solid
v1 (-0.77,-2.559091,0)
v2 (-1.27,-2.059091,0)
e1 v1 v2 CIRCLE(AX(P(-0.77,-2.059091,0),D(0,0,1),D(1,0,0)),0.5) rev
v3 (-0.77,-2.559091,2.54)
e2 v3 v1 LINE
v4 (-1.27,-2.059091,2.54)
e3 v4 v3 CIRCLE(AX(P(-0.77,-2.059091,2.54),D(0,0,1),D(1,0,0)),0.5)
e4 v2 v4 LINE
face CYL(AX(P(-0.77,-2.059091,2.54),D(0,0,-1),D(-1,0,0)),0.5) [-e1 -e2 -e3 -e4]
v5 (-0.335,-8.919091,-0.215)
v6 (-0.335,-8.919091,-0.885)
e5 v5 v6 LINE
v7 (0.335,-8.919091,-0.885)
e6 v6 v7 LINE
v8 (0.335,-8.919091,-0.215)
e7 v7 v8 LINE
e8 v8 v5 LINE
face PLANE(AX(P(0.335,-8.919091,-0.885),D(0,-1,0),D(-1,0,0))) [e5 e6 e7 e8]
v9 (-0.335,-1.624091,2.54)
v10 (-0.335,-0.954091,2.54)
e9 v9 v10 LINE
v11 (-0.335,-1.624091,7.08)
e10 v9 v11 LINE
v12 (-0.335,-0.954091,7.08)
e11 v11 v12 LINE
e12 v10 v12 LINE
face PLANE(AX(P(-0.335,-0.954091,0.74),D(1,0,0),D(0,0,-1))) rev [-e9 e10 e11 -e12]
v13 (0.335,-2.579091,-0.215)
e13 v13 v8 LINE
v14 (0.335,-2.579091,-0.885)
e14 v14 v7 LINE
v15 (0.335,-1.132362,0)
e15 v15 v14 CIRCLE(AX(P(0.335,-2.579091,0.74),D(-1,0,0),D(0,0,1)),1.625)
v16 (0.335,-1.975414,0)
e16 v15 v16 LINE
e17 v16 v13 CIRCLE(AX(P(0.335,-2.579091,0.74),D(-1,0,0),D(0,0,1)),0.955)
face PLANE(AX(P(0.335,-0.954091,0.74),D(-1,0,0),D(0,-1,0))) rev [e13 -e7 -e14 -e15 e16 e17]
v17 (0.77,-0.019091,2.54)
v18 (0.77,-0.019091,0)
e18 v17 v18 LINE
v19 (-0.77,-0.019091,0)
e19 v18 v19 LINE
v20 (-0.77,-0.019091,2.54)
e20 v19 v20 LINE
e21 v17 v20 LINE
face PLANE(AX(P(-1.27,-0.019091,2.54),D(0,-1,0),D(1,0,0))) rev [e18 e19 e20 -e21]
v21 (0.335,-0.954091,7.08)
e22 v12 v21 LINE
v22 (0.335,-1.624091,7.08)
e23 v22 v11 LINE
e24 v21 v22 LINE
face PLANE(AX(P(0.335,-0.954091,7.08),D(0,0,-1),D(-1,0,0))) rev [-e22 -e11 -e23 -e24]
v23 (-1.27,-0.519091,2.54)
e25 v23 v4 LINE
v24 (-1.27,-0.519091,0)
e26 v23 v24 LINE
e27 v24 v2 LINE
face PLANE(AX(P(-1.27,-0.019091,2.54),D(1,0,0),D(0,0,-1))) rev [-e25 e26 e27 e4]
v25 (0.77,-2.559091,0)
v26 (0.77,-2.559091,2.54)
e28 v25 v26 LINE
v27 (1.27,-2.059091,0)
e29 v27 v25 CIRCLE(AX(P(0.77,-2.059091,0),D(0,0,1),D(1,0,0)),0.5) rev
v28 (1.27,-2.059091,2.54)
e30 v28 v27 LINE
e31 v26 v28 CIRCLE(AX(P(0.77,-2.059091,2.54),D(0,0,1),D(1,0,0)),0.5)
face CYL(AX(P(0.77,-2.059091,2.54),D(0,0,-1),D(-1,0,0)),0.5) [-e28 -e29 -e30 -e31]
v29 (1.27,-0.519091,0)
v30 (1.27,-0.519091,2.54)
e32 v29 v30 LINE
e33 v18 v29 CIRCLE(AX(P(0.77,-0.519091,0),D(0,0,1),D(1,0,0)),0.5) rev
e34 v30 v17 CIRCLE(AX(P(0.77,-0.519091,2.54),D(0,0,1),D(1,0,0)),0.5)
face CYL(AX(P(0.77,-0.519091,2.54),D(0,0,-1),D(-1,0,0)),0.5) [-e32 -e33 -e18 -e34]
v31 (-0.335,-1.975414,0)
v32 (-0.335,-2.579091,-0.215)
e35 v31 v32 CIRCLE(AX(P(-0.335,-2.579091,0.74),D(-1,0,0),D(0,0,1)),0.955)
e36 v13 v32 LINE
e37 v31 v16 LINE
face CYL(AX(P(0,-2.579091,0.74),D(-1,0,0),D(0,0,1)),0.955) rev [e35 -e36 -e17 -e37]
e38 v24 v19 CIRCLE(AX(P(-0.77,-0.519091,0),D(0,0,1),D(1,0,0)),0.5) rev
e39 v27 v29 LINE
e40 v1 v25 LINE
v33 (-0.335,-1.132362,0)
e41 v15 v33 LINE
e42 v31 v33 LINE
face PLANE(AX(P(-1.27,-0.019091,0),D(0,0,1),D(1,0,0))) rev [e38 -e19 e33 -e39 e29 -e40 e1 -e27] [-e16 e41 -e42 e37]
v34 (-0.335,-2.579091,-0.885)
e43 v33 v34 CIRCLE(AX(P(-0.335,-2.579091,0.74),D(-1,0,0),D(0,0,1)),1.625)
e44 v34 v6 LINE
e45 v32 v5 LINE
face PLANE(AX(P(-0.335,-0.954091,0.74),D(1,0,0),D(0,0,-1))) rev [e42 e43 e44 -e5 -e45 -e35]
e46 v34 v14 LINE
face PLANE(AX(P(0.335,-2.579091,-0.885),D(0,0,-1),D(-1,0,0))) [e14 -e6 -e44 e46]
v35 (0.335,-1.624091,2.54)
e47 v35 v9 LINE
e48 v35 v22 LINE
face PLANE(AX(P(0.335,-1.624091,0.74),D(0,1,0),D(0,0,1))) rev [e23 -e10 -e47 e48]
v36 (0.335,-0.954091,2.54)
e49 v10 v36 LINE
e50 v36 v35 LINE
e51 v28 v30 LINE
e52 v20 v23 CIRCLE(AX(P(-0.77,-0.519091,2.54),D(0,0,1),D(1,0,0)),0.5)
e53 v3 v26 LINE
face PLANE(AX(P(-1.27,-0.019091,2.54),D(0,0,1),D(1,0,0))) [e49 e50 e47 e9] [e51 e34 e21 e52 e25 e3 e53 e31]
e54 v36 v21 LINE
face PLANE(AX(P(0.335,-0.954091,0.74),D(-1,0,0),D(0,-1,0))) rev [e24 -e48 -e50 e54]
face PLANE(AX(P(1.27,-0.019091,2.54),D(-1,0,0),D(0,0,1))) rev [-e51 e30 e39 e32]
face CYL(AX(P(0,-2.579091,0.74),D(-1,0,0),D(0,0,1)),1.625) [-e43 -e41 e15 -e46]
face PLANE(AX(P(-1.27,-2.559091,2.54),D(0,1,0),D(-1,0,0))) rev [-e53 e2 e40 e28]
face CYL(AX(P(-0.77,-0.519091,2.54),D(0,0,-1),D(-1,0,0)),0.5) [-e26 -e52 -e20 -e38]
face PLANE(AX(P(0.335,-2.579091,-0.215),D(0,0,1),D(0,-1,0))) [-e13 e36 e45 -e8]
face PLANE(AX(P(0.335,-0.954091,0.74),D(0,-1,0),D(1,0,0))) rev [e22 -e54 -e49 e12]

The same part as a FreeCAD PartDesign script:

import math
import FreeCAD as App
import Part
import Sketcher

V = App.Vector


def edges_at(feature, points):
    """Names of the edges that pass closest to the given points."""
    edges = feature.Shape.Edges
    near = lambda p: min(range(len(edges)), key=lambda i: edges[i].distToShape(Part.Vertex(*p))[0])
    return sorted({f"Edge{near(p) + 1}" for p in points})


def add_polygon(sketch, points):
    """Adds a closed chain of lines whose ends are joined by coincident constraints."""
    first, n = sketch.GeometryCount, len(points)
    for a, b in zip(points, points[1:] + points[:1]):
        sketch.addGeometry(Part.LineSegment(App.Vector(*a, 0), App.Vector(*b, 0)), False)
    for i in range(n):
        sketch.addConstraint(Sketcher.Constraint("Coincident", first + i, 2, first + (i + 1) % n, 1))

doc = App.newDocument("Part")
body = doc.addObject("PartDesign::Body", "Body")

sketch1 = body.newObject("Sketcher::SketchObject", "Sketch")
sketch1.AttachmentSupport = (doc.getObject("XY_Plane"), [""])
sketch1.MapMode = "FlatFace"
add_polygon(sketch1, [(-1.27, -0.019091), (-1.27, -2.559091), (1.27, -2.559091), (1.27, -0.019091)])
sketch1.addConstraint([
    Sketcher.Constraint("Vertical", 0),
    Sketcher.Constraint("Horizontal", 1),
    Sketcher.Constraint("Vertical", 2),
    Sketcher.Constraint("Horizontal", 3),
    Sketcher.Constraint("Equal", 3, 0),
    Sketcher.Constraint("DistanceX", 1, 1, 1, 2, 2.54),
    Sketcher.Constraint("DistanceX", 0, 2, -1, 1, 1.27),
    Sketcher.Constraint("DistanceY", 0, 2, -1, 1, 2.559091),
])
pad1 = body.newObject("PartDesign::Pad", "Pad")
pad1.Profile = sketch1
pad1.Length = 2.54

sketch2 = body.newObject("Sketcher::SketchObject", "Sketch001")
sketch2.AttachmentSupport = (doc.getObject("XY_Plane"), [""])
sketch2.MapMode = "FlatFace"
sketch2.AttachmentOffset = App.Placement(V(0, 0, 7.08), App.Rotation())
add_polygon(sketch2, [(0.335, -0.954091), (0.335, -1.624091), (-0.335, -1.624091), (-0.335, -0.954091)])
sketch2.addConstraint([
    Sketcher.Constraint("Vertical", 0),
    Sketcher.Constraint("Horizontal", 1),
    Sketcher.Constraint("Vertical", 2),
    Sketcher.Constraint("Horizontal", 3),
    Sketcher.Constraint("Equal", 3, 0),
    Sketcher.Constraint("DistanceX", 1, 2, 1, 1, 0.67),
    Sketcher.Constraint("DistanceX", -1, 1, 0, 2, 0.335),
    Sketcher.Constraint("DistanceY", 0, 2, -1, 1, 1.624091),
])

sketch3 = body.newObject("Sketcher::SketchObject", "Sketch002")
sketch3.AttachmentSupport = (doc.getObject("YZ_Plane"), [""])
sketch3.MapMode = "FlatFace"
sketch3.addGeometry([
    Part.LineSegment(V(-1.299091, 7.08, 0), V(-1.299091, 0.74, 0)),
    Part.ArcOfCircle(Part.Circle(V(-2.579091, 0.74, 0), V(0, 0, 1), 1.28), math.radians(-90), math.radians(0)),
    Part.LineSegment(V(-2.579091, -0.54, 0), V(-8.919091, -0.54, 0)),
], False)
sketch3.addConstraint([
    Sketcher.Constraint("Tangent", 0, 2, 1, 2),
    Sketcher.Constraint("Tangent", 1, 1, 2, 1),
    Sketcher.Constraint("Vertical", 0),
    Sketcher.Constraint("Horizontal", 2),
    Sketcher.Constraint("Equal", 2, 0),
    Sketcher.Constraint("Radius", 1, 1.28),
    Sketcher.Constraint("DistanceX", 2, 2, 2, 1, 6.34),
    Sketcher.Constraint("DistanceY", -1, 1, 1, 3, 0.74),
    Sketcher.Constraint("DistanceX", 1, 3, -1, 1, 2.579091),
])
doc.recompute()

additivepipe = body.newObject("PartDesign::AdditivePipe", "AdditivePipe")
additivepipe.Profile = sketch2
additivepipe.Spine = (sketch3, ["Edge1", "Edge2", "Edge3"])
doc.recompute()

fillet = body.newObject("PartDesign::Fillet", "Fillet")
fillet.Base = (additivepipe, edges_at(additivepipe, [
    (-1.27, -0.019, 1.27),
    (1.27, -0.019, 1.27),
    (1.27, -2.559, 1.27),
    (-1.27, -2.559, 1.27),
]))
fillet.Radius = 0.5

doc.recompute()
